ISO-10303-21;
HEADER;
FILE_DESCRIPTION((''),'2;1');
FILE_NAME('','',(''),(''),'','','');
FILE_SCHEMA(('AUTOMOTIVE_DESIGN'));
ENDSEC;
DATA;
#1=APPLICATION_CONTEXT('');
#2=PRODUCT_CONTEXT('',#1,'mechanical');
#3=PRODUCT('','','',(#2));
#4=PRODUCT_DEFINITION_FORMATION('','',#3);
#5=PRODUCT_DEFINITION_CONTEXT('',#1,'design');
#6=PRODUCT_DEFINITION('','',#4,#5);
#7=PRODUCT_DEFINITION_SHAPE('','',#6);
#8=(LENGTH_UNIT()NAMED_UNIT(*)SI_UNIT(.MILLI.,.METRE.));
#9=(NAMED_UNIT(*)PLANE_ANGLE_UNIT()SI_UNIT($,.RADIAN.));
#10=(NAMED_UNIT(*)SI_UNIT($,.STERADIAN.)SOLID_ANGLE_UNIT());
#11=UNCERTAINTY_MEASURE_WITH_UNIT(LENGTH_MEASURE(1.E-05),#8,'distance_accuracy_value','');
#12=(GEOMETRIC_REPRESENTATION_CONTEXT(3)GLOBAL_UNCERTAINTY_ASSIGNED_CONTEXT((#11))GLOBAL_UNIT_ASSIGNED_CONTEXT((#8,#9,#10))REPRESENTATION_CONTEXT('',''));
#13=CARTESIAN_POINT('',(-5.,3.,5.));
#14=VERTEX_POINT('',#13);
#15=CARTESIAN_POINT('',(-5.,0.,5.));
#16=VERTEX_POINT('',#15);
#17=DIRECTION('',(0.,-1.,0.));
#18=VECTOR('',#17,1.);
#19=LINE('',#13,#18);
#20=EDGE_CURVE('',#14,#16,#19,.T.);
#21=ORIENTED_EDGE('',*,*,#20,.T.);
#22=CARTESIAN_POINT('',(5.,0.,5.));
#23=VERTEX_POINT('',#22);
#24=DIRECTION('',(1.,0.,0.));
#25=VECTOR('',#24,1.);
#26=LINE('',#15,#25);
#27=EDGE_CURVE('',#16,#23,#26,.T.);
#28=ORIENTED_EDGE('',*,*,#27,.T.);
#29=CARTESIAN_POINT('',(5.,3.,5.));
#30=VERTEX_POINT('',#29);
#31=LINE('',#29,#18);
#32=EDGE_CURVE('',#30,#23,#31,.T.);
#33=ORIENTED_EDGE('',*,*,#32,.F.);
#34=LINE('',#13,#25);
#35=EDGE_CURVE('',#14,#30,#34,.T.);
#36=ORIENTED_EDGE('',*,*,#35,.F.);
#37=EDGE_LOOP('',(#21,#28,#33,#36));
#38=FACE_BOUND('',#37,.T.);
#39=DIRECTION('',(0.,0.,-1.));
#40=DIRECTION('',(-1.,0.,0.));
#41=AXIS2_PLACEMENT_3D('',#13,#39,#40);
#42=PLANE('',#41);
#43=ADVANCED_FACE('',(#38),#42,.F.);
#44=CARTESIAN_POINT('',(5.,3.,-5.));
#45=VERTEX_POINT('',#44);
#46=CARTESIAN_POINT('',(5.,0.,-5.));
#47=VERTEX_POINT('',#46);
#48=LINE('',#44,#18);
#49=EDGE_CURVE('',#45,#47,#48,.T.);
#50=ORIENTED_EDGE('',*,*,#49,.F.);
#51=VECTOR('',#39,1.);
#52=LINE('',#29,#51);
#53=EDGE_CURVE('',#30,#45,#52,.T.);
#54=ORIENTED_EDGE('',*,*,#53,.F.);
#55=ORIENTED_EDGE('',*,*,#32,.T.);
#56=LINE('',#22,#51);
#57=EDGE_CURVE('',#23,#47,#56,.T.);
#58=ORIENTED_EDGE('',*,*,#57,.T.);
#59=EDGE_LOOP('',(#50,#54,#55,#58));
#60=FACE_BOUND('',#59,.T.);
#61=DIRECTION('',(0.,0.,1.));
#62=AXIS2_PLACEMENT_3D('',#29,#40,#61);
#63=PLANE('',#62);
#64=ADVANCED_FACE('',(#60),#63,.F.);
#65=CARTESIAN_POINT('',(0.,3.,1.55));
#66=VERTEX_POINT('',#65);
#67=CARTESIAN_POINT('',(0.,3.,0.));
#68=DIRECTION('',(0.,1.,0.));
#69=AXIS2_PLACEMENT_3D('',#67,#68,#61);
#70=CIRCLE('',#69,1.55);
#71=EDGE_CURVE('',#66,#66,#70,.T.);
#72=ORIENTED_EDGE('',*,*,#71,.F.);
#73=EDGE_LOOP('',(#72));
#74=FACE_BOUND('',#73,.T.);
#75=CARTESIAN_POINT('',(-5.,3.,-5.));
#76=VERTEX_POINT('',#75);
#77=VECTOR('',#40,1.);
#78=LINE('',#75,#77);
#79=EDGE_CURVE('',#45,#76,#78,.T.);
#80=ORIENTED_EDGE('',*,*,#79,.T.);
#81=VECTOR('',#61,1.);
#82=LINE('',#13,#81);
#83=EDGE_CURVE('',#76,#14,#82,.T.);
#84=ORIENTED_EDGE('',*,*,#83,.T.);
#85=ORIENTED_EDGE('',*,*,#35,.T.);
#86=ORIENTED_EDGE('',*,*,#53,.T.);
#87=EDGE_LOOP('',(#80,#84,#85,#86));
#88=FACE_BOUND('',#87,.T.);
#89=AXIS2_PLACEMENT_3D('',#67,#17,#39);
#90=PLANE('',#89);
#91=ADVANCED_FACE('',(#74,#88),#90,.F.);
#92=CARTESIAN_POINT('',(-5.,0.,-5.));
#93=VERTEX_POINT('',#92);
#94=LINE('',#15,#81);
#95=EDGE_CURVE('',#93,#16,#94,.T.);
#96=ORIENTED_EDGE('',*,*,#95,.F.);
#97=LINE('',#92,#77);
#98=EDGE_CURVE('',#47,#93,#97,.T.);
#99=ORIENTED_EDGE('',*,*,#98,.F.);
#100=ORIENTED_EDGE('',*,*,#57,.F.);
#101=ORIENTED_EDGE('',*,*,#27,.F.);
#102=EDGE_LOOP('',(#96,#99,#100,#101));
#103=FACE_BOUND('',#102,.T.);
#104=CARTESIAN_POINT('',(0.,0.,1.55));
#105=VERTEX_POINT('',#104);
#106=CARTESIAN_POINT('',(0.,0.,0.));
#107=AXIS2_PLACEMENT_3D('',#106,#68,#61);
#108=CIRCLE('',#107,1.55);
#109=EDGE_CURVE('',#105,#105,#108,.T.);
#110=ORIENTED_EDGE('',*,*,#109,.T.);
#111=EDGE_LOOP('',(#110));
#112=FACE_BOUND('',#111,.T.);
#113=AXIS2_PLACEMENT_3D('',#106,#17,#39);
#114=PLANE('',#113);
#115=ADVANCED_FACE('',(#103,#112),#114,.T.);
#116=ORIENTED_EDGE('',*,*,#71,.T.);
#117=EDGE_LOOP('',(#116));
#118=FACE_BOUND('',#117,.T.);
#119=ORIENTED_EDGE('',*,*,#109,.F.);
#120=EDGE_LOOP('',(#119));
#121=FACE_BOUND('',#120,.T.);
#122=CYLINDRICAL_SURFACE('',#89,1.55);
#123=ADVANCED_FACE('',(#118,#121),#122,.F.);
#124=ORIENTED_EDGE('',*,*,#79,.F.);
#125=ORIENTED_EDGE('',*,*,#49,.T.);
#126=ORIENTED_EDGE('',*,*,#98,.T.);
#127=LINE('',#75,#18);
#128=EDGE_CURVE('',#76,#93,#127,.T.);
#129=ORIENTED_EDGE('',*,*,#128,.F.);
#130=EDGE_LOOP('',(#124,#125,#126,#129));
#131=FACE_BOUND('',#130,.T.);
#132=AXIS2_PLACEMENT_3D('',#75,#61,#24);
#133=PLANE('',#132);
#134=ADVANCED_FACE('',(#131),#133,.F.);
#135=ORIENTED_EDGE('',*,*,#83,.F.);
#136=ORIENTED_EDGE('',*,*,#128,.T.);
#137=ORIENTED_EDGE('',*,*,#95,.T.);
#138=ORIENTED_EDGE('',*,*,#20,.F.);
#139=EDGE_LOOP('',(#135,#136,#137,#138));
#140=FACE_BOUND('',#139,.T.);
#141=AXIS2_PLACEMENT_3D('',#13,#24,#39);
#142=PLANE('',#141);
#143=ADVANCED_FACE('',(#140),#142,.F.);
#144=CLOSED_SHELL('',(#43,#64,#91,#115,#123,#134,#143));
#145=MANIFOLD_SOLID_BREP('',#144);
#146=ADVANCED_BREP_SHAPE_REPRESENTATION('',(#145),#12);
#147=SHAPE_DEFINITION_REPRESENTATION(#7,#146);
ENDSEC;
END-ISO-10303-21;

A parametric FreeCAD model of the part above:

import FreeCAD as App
import Part
import Sketcher
Q = App.Units.Quantity

doc = App.newDocument("Part")
body = doc.addObject("PartDesign::Body", "Body")

# Sketch on XZ plane
sketch1 = body.newObject("Sketcher::SketchObject", "Sketch")
sketch1.AttachmentSupport = (doc.getObject("XZ_Plane"), [""])
sketch1.MapMode = "FlatFace"
sketch1.addGeometry(Part.LineSegment(App.Vector(-5, -5, 0), App.Vector(-5, 5, 0)), False)
sketch1.addGeometry(Part.LineSegment(App.Vector(-5, 5, 0), App.Vector(5, 5, 0)), False)
sketch1.addGeometry(Part.LineSegment(App.Vector(5, 5, 0), App.Vector(5, -5, 0)), False)
sketch1.addGeometry(Part.LineSegment(App.Vector(5, -5, 0), App.Vector(-5, -5, 0)), False)
sketch1.addGeometry(Part.Circle(App.Vector(0, 0, 0), App.Vector(0, 0, 1), 1.6), False)
sketch1.addConstraint(Sketcher.Constraint("Coincident", 0, 2, 1, 1))
sketch1.addConstraint(Sketcher.Constraint("Coincident", 1, 2, 2, 1))
sketch1.addConstraint(Sketcher.Constraint("Coincident", 2, 2, 3, 1))
sketch1.addConstraint(Sketcher.Constraint("Coincident", 3, 2, 0, 1))
sketch1.addConstraint(Sketcher.Constraint("Vertical", 0))
sketch1.addConstraint(Sketcher.Constraint("Horizontal", 1))
sketch1.addConstraint(Sketcher.Constraint("Vertical", 2))
sketch1.addConstraint(Sketcher.Constraint("Horizontal", 3))
sketch1.addConstraint(Sketcher.Constraint("Coincident", 4, 3, -1, 1))
sketch1.addConstraint(Sketcher.Constraint("Symmetric", 0, 2, 2, 2, -1, 1))
sketch1.addConstraint(Sketcher.Constraint("Equal", 3, 0))
sketch1.addConstraint(Sketcher.Constraint("Diameter", 4, Q("3.1 mm")))
sketch1.addConstraint(Sketcher.Constraint("DistanceX", 1, 1, 1, 2, Q("10 mm")))
pad1 = body.newObject("PartDesign::Pad", "Pad")
pad1.Profile = sketch1
pad1.Length = 3
pad1.Reversed = True

doc.recompute()
